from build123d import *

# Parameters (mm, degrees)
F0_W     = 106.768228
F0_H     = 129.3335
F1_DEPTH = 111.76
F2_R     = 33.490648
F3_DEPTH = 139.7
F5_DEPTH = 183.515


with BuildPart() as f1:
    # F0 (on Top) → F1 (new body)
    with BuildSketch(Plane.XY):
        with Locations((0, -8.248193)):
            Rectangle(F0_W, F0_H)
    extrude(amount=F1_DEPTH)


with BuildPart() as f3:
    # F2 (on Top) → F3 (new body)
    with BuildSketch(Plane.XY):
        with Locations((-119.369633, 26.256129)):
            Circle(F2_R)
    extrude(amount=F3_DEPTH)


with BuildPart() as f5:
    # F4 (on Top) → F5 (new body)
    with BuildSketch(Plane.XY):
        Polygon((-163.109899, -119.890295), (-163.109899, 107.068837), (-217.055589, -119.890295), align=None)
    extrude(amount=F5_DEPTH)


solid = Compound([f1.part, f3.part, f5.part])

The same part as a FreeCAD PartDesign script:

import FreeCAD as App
import Part
import Sketcher


def add_polygon(sketch, points):
    """Adds a closed chain of lines whose ends are joined by coincident constraints."""
    first, n = sketch.GeometryCount, len(points)
    for a, b in zip(points, points[1:] + points[:1]):
        sketch.addGeometry(Part.LineSegment(App.Vector(*a, 0), App.Vector(*b, 0)), False)
    for i in range(n):
        sketch.addConstraint(Sketcher.Constraint("Coincident", first + i, 2, first + (i + 1) % n, 1))

doc = App.newDocument("Part")
params = doc.addObject("Spreadsheet::Sheet", "Params")
for row, (alias, value) in enumerate([
    ("pad1_length", "4.4 in"),
    ("pad2_length", "5.5 in"),
    ("pad3_length", "7.225 in"),
], start=1):
    params.set(f"A{row}", alias)
    params.set(f"B{row}", "=" + value)
    params.setAlias(f"B{row}", alias)

body = doc.addObject("PartDesign::Body", "Body")

# Sketch on XY plane
sketch1 = body.newObject("Sketcher::SketchObject", "Sketch")
sketch1.AttachmentSupport = (doc.getObject("XY_Plane"), [""])
sketch1.MapMode = "FlatFace"
add_polygon(sketch1, [(-53, 56), (-53, -73), (53, -73), (53, 56)])  # lines 0-3
sketch1.addConstraint([
    Sketcher.Constraint("Vertical", 0),
    Sketcher.Constraint("Horizontal", 1),
    Sketcher.Constraint("Vertical", 2),
    Sketcher.Constraint("Horizontal", 3),
    Sketcher.Constraint("DistanceY", 0, 2, 0, 1, 129.3335),
    Sketcher.Constraint("DistanceX", 1, 1, 1, 2, 106.768228),
    Sketcher.Constraint("DistanceX", 0, 2, -1, 1, 53.384114),
    Sketcher.Constraint("DistanceY", 0, 2, -1, 1, 72.914943),
])
pad1 = body.newObject("PartDesign::Pad", "Pad")
pad1.Profile = sketch1
pad1.setExpression("Length", "Params.pad1_length")
body2 = doc.addObject("PartDesign::Body", "Body001")

# Sketch on XY plane
sketch2 = body2.newObject("Sketcher::SketchObject", "Sketch001")
sketch2.AttachmentSupport = (doc.getObject("XY_Plane001"), [""])
sketch2.MapMode = "FlatFace"
sketch2.addGeometry(Part.Circle(App.Vector(-119, 26, 0), App.Vector(0, 0, 1), 33), False)
sketch2.addConstraint([
    Sketcher.Constraint("Diameter", 0, 66.981296),
    Sketcher.Constraint("DistanceY", -1, 1, 0, 3, 26.256129),
    Sketcher.Constraint("DistanceX", 0, 3, -1, 1, 119.369633),
])
pad2 = body2.newObject("PartDesign::Pad", "Pad001")
pad2.Profile = sketch2
pad2.setExpression("Length", "Params.pad2_length")
body3 = doc.addObject("PartDesign::Body", "Body002")

# Sketch on XY plane
sketch3 = body3.newObject("Sketcher::SketchObject", "Sketch002")
sketch3.AttachmentSupport = (doc.getObject("XY_Plane002"), [""])
sketch3.MapMode = "FlatFace"
add_polygon(sketch3, [(-163, -120), (-163, 107), (-217, -120)])  # lines 0-2
sketch3.addConstraint([
    Sketcher.Constraint("Vertical", 0),
    Sketcher.Constraint("Horizontal", 2),
    Sketcher.Constraint("Distance", 1, 233.2822),
    Sketcher.Constraint("DistanceX", 2, 1, 2, 2, 53.94569),
    Sketcher.Constraint("DistanceX", 0, 2, -1, 1, 163.109899),
    Sketcher.Constraint("DistanceY", -1, 1, 0, 2, 107.068837),
])
pad3 = body3.newObject("PartDesign::Pad", "Pad002")
pad3.Profile = sketch3
pad3.setExpression("Length", "Params.pad3_length")

doc.recompute()
